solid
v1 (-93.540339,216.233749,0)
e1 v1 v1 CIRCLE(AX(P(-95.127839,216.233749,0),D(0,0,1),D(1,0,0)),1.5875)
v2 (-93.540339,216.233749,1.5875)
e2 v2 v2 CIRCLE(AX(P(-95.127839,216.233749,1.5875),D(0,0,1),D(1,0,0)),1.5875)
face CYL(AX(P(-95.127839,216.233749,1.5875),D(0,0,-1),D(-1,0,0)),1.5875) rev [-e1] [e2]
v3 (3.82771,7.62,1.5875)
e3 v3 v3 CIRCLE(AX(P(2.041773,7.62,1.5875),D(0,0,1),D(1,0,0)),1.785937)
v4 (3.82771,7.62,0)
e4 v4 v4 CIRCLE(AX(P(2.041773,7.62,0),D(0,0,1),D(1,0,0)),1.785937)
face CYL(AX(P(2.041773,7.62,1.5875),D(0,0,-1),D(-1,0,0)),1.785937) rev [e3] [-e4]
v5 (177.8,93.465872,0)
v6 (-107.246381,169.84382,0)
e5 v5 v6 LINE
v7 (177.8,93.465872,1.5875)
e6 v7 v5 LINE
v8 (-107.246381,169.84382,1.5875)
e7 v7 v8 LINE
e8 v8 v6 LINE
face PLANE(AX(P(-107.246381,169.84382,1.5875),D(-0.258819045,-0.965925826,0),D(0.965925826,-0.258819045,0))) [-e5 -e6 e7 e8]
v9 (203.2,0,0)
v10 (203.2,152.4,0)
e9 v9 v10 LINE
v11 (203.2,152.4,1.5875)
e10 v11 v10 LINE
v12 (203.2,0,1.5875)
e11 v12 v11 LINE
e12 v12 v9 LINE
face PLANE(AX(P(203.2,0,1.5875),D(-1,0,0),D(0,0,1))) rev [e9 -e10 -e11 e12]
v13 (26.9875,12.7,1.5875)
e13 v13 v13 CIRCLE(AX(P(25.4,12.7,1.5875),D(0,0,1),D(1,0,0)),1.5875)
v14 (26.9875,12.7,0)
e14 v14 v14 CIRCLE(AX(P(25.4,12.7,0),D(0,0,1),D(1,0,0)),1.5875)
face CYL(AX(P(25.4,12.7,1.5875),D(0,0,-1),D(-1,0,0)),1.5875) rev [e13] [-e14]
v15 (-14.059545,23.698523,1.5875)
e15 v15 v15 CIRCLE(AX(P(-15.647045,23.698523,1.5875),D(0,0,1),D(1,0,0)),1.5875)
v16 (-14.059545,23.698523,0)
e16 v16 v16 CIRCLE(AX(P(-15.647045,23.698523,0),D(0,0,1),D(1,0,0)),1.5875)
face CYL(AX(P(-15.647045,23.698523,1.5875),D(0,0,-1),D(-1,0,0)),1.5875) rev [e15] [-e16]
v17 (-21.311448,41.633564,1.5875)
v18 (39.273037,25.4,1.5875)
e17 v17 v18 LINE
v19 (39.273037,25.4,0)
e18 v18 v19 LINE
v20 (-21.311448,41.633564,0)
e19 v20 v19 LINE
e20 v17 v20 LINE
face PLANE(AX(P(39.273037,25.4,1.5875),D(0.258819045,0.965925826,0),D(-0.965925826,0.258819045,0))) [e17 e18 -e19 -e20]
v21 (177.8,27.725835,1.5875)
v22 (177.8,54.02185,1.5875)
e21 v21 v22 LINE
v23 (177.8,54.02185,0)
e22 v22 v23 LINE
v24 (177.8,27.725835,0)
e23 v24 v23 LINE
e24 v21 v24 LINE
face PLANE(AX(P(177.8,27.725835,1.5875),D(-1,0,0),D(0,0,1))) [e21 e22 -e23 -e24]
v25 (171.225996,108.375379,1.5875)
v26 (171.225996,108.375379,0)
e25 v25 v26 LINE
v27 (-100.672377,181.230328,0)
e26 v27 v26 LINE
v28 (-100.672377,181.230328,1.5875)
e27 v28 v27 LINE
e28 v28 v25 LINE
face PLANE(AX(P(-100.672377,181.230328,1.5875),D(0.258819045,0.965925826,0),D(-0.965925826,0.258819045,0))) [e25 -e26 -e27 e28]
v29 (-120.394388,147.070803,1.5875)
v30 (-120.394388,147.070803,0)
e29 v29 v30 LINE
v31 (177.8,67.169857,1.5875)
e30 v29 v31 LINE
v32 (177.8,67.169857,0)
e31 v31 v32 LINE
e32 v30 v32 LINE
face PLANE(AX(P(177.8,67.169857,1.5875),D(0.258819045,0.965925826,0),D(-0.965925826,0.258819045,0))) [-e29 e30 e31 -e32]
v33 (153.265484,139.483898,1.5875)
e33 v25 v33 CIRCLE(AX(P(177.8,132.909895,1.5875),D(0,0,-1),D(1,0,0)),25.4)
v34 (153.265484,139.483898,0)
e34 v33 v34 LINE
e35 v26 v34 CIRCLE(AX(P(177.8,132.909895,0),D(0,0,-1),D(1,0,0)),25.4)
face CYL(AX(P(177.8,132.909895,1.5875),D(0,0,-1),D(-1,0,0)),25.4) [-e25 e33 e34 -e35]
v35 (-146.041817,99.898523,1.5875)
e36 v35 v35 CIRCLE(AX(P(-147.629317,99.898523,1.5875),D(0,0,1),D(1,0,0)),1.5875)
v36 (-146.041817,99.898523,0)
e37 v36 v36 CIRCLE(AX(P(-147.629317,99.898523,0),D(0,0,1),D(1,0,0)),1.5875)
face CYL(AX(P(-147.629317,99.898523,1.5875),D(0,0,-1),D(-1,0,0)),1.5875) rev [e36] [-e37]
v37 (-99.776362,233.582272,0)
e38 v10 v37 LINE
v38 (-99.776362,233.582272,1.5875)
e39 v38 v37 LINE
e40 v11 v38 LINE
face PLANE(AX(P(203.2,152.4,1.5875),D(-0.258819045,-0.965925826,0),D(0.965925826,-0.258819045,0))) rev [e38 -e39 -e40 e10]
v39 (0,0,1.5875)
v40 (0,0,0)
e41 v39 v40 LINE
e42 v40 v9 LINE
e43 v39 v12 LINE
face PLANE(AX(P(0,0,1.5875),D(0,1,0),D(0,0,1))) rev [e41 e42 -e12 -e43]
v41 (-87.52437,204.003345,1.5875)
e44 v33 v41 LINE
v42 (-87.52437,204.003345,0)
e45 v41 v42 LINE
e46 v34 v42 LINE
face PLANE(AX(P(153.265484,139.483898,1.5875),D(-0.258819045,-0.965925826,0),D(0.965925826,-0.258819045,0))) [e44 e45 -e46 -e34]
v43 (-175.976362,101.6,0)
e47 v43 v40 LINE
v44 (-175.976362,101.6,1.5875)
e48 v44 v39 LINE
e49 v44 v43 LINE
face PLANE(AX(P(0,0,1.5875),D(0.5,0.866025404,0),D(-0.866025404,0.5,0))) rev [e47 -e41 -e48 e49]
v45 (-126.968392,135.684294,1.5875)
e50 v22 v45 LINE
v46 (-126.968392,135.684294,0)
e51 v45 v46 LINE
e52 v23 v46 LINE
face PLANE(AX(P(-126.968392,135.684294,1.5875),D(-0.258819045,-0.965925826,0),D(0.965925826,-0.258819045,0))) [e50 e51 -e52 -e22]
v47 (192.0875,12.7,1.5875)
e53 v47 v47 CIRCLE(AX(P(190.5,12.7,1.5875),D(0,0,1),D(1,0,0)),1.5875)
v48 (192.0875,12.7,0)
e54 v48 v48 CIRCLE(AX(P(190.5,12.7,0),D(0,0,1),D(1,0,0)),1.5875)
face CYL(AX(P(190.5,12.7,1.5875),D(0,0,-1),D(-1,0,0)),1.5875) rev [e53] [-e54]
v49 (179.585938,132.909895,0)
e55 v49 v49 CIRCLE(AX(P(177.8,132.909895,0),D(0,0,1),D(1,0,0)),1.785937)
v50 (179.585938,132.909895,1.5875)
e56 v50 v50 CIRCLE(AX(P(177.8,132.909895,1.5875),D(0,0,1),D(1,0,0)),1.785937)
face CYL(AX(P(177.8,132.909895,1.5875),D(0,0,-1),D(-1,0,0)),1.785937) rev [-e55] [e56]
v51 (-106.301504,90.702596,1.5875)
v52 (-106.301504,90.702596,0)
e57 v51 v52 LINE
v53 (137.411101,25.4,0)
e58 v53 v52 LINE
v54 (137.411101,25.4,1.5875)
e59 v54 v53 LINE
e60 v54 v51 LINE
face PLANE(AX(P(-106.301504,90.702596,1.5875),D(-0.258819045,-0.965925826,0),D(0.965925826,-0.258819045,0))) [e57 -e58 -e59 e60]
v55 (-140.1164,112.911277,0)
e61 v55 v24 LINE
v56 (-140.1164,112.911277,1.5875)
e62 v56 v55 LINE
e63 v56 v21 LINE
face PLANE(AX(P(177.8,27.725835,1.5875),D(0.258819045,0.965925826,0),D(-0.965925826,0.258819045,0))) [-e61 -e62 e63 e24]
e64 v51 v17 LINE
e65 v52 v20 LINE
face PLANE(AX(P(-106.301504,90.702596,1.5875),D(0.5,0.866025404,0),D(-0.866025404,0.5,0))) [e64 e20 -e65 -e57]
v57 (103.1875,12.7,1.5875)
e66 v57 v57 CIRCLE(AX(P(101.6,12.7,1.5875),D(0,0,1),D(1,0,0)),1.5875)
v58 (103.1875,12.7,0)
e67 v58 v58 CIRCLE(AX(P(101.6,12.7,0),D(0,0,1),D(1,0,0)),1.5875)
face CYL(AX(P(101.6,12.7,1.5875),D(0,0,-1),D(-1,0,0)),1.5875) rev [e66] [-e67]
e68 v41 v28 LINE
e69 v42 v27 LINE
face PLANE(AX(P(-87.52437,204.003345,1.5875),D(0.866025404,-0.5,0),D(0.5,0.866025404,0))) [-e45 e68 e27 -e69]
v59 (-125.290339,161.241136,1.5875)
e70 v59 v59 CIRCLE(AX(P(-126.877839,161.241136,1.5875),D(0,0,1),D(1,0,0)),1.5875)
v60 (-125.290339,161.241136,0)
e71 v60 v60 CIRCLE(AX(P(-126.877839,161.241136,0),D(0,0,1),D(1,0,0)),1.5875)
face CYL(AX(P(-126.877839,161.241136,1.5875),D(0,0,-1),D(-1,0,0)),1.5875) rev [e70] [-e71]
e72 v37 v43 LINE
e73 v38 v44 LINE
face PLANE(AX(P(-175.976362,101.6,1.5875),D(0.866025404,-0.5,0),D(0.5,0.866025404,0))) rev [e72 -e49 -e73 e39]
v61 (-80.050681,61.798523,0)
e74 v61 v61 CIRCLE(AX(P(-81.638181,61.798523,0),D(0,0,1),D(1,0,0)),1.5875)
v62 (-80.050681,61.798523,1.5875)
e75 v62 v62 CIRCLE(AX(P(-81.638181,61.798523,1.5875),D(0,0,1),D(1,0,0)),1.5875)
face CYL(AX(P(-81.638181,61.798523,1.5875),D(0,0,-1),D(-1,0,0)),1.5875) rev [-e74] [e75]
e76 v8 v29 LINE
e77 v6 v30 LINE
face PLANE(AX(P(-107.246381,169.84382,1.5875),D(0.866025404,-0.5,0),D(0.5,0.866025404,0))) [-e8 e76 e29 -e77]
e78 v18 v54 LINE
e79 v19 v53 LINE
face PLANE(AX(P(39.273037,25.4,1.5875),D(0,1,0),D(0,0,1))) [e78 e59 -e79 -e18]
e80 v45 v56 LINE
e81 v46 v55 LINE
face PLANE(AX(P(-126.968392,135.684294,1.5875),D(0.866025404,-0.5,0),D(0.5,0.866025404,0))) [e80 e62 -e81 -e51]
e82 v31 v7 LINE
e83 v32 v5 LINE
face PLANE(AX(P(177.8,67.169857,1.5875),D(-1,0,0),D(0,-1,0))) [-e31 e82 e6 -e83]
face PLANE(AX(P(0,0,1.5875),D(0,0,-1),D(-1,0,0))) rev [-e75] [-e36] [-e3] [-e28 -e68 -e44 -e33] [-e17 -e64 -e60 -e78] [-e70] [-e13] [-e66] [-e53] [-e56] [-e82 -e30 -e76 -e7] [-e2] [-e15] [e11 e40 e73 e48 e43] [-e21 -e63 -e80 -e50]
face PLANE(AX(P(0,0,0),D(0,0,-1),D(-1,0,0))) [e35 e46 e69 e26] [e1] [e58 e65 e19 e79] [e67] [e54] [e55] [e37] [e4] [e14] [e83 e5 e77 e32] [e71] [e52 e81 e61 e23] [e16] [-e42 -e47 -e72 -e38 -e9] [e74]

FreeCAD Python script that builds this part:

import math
import FreeCAD as App
import Part
import Sketcher
from FreeCAD import Vector
Q = App.Units.Quantity


def add_polygon(sketch, points):
    """Adds a closed chain of lines whose ends are joined by coincident constraints."""
    first, n = sketch.GeometryCount, len(points)
    for a, b in zip(points, points[1:] + points[:1]):
        sketch.addGeometry(Part.LineSegment(App.Vector(*a, 0), App.Vector(*b, 0)), False)
    for i in range(n):
        sketch.addConstraint(Sketcher.Constraint("Coincident", first + i, 2, first + (i + 1) % n, 1))

doc = App.newDocument("Part")
body = doc.addObject("PartDesign::Body", "Body")

sketch1 = body.newObject("Sketcher::SketchObject", "Sketch")
sketch1.AttachmentSupport = (doc.getObject("XY_Plane"), [""])
sketch1.MapMode = "FlatFace"
add_polygon(sketch1, [(0, 0), (203.2, 0), (203.2, 152.4), (-99.8, 233.6), (-176, 101.6)])
sketch1.addGeometry(Part.Circle(Vector(2, 7.6, 0), Vector(0, 0, 1), 1.8), False)
sketch1.addGeometry(Part.Circle(Vector(-15.6, 23.7, 0), Vector(0, 0, 1), 1.6), False)
add_polygon(sketch1, [(-21.3, 41.6), (-106.3, 90.7), (137.4, 25.4), (39.3, 25.4)])
sketch1.addGeometry(Part.Circle(Vector(-81.6, 61.8, 0), Vector(0, 0, 1), 1.6), False)
sketch1.addGeometry(Part.Circle(Vector(-147.6, 99.9, 0), Vector(0, 0, 1), 1.6), False)
add_polygon(sketch1, [(177.8, 54), (177.8, 27.7), (-140.1, 112.9), (-127, 135.7)])
sketch1.addGeometry(Part.Circle(Vector(25.4, 12.7, 0), Vector(0, 0, 1), 1.6), False)
sketch1.addGeometry(Part.Circle(Vector(101.6, 12.7, 0), Vector(0, 0, 1), 1.6), False)
sketch1.addGeometry(Part.Circle(Vector(190.5, 12.7, 0), Vector(0, 0, 1), 1.6), False)
sketch1.addGeometry(Part.Circle(Vector(-126.9, 161.2, 0), Vector(0, 0, 1), 1.6), False)
sketch1.addGeometry(Part.Circle(Vector(-95.1, 216.2, 0), Vector(0, 0, 1), 1.6), False)
add_polygon(sketch1, [(-120.4, 147.1), (-107.2, 169.8), (177.8, 93.5), (177.8, 67.2)])
sketch1.addGeometry(Part.LineSegment(Vector(171.2, 108.4, 0), Vector(-100.7, 181.2, 0)), False)
sketch1.addGeometry(Part.LineSegment(Vector(-100.7, 181.2, 0), Vector(-87.5, 204, 0)), False)
sketch1.addGeometry(Part.LineSegment(Vector(-87.5, 204, 0), Vector(153.3, 139.5, 0)), False)
sketch1.addGeometry(Part.ArcOfCircle(Part.Circle(Vector(177.8, 132.9, 0), Vector(0, 0, 1), 25.4), math.radians(165), math.radians(255)), False)
sketch1.addGeometry(Part.Circle(Vector(177.8, 132.9, 0), Vector(0, 0, 1), 1.8), False)
sketch1.addConstraint([
    Sketcher.Constraint("Coincident", 26, 2, 27, 1),
    Sketcher.Constraint("Coincident", 27, 2, 28, 1),
    Sketcher.Constraint("Coincident", 28, 2, 29, 1),
    Sketcher.Constraint("Tangent", 29, 2, 26, 1),
    Sketcher.Constraint("Horizontal", 0),
    Sketcher.Constraint("Vertical", 1),
    Sketcher.Constraint("Horizontal", 9),
    Sketcher.Constraint("Vertical", 13),
    Sketcher.Constraint("Vertical", 24),
    Sketcher.Constraint("Coincident", 4, 2, -1, 1),
    Sketcher.Constraint("Coincident", 30, 3, 29, 3),
    Sketcher.Constraint("Equal", 6, 11),
    Sketcher.Constraint("Equal", 11, 12),
    Sketcher.Constraint("Equal", 12, 17),
    Sketcher.Constraint("Equal", 17, 18),
    Sketcher.Constraint("Equal", 18, 19),
    Sketcher.Constraint("Equal", 19, 20),
    Sketcher.Constraint("Equal", 20, 21),
    Sketcher.Constraint("Equal", 5, 30),
    Sketcher.Constraint("Perpendicular", 3, 4),
    Sketcher.Constraint("Parallel", 4, 7),
    Sketcher.Constraint("Parallel", 2, 8),
    Sketcher.Constraint("Parallel", 8, 10),
    Sketcher.Constraint("Parallel", 10, 14),
    Sketcher.Constraint("Perpendicular", 7, 15),
    Sketcher.Constraint("Parallel", 14, 16),
    Sketcher.Constraint("Parallel", 15, 22),
    Sketcher.Constraint("Parallel", 16, 23),
    Sketcher.Constraint("Parallel", 23, 25),
    Sketcher.Constraint("Parallel", 25, 26),
    Sketcher.Constraint("Parallel", 22, 27),
    Sketcher.Constraint("Parallel", 26, 28),
    Sketcher.Constraint("Horizontal", 17, 3, 18, 3),
    Sketcher.Constraint("Horizontal", 18, 3, 19, 3),
    Sketcher.Constraint("Vertical", 30, 3, 13, 2),
    Sketcher.Constraint("Vertical", 16, 2, 23, 2),
    Sketcher.Constraint("Equal", 13, 24),
    Sketcher.Constraint("Equal", 22, 27),
    Sketcher.Constraint("Radius", 29, Q("1 in")),
    Sketcher.Constraint("DistanceX", 0, 1, 0, 2, Q("8 in")),
    Sketcher.Constraint("DistanceY", 1, 1, 1, 2, Q("6 in")),
    Sketcher.Constraint("Distance", 3, Q("6 in")),
    Sketcher.Constraint("Distance", 4, Q("8 in")),
    Sketcher.Constraint("Diameter", 5, Q("0.140625 in")),
    Sketcher.Constraint("Diameter", 6, Q("0.125 in")),
    Sketcher.Constraint("DistanceX", -1, 1, 17, 3, Q("1 in")),
    Sketcher.Constraint("DistanceX", -1, 1, 18, 3, Q("4 in")),
    Sketcher.Constraint("DistanceX", -1, 1, 29, 3, Q("7 in")),
    Sketcher.Constraint("DistanceY", -1, 1, 3, 2, Q("4 in")),
    Sketcher.Constraint("DistanceY", -1, 1, 8, 2, Q("1 in")),
    Sketcher.Constraint("DistanceY", 6, 3, 12, 3, Q("3 in")),
    Sketcher.Constraint("DistanceY", -1, 1, 5, 3, Q("0.3 in")),
    Sketcher.Constraint("DistanceY", -1, 1, 17, 3, Q("0.5 in")),
    Sketcher.Constraint("DistanceX", -1, 1, 19, 3, Q("7.5 in")),
    Sketcher.Constraint("DistanceY", 6, 3, 11, 3, Q("1.5 in")),
    Sketcher.Constraint("DistanceX", 20, 3, 21, 3, Q("1.25 in")),
    Sketcher.Constraint("DistanceY", 26, 2, 2, 2, Q("2.0611001 in")),
    Sketcher.Constraint("Distance", 28, 249.284),
    Sketcher.Constraint("DistanceX", -1, 1, 8, 2, 137.411101),
    Sketcher.Constraint("DistanceX", 14, 2, -1, 1, 140.1164),
    Sketcher.Constraint("DistanceY", -1, 1, 28, 2, 139.483898),
    Sketcher.Constraint("DistanceY", 7, 2, 15, 2, 44.981698),
    Sketcher.Constraint("Distance", 23, 295.101728),
    Sketcher.Constraint("DistanceX", 9, 2, 9, 1, 98.138064),
    Sketcher.Constraint("DistanceX", 11, 3, -1, 1, 81.638181),
    Sketcher.Constraint("DistanceX", 20, 3, -1, 1, 126.877839),
    Sketcher.Constraint("DistanceY", -1, 1, 21, 3, 216.233749),
    Sketcher.Constraint("DistanceY", -1, 1, 16, 2, 54.02185),
    Sketcher.Constraint("DistanceY", -1, 1, 22, 2, 169.84382),
    Sketcher.Constraint("DistanceX", 6, 3, 5, 3, 17.688818),
    Sketcher.Constraint("DistanceX", 12, 3, 6, 3, 131.982272),
    Sketcher.Constraint("DistanceY", 6, 3, 29, 3, 109.211372),
    Sketcher.Constraint("DistanceY", 7, 2, 20, 3, 70.53854),
    Sketcher.Constraint("DistanceX", 7, 2, 6, 3, 90.654459),
])
pad1 = body.newObject("PartDesign::Pad", "Pad")
pad1.Profile = sketch1
pad1.Length = Q("0.0625 in")

doc.recompute()
